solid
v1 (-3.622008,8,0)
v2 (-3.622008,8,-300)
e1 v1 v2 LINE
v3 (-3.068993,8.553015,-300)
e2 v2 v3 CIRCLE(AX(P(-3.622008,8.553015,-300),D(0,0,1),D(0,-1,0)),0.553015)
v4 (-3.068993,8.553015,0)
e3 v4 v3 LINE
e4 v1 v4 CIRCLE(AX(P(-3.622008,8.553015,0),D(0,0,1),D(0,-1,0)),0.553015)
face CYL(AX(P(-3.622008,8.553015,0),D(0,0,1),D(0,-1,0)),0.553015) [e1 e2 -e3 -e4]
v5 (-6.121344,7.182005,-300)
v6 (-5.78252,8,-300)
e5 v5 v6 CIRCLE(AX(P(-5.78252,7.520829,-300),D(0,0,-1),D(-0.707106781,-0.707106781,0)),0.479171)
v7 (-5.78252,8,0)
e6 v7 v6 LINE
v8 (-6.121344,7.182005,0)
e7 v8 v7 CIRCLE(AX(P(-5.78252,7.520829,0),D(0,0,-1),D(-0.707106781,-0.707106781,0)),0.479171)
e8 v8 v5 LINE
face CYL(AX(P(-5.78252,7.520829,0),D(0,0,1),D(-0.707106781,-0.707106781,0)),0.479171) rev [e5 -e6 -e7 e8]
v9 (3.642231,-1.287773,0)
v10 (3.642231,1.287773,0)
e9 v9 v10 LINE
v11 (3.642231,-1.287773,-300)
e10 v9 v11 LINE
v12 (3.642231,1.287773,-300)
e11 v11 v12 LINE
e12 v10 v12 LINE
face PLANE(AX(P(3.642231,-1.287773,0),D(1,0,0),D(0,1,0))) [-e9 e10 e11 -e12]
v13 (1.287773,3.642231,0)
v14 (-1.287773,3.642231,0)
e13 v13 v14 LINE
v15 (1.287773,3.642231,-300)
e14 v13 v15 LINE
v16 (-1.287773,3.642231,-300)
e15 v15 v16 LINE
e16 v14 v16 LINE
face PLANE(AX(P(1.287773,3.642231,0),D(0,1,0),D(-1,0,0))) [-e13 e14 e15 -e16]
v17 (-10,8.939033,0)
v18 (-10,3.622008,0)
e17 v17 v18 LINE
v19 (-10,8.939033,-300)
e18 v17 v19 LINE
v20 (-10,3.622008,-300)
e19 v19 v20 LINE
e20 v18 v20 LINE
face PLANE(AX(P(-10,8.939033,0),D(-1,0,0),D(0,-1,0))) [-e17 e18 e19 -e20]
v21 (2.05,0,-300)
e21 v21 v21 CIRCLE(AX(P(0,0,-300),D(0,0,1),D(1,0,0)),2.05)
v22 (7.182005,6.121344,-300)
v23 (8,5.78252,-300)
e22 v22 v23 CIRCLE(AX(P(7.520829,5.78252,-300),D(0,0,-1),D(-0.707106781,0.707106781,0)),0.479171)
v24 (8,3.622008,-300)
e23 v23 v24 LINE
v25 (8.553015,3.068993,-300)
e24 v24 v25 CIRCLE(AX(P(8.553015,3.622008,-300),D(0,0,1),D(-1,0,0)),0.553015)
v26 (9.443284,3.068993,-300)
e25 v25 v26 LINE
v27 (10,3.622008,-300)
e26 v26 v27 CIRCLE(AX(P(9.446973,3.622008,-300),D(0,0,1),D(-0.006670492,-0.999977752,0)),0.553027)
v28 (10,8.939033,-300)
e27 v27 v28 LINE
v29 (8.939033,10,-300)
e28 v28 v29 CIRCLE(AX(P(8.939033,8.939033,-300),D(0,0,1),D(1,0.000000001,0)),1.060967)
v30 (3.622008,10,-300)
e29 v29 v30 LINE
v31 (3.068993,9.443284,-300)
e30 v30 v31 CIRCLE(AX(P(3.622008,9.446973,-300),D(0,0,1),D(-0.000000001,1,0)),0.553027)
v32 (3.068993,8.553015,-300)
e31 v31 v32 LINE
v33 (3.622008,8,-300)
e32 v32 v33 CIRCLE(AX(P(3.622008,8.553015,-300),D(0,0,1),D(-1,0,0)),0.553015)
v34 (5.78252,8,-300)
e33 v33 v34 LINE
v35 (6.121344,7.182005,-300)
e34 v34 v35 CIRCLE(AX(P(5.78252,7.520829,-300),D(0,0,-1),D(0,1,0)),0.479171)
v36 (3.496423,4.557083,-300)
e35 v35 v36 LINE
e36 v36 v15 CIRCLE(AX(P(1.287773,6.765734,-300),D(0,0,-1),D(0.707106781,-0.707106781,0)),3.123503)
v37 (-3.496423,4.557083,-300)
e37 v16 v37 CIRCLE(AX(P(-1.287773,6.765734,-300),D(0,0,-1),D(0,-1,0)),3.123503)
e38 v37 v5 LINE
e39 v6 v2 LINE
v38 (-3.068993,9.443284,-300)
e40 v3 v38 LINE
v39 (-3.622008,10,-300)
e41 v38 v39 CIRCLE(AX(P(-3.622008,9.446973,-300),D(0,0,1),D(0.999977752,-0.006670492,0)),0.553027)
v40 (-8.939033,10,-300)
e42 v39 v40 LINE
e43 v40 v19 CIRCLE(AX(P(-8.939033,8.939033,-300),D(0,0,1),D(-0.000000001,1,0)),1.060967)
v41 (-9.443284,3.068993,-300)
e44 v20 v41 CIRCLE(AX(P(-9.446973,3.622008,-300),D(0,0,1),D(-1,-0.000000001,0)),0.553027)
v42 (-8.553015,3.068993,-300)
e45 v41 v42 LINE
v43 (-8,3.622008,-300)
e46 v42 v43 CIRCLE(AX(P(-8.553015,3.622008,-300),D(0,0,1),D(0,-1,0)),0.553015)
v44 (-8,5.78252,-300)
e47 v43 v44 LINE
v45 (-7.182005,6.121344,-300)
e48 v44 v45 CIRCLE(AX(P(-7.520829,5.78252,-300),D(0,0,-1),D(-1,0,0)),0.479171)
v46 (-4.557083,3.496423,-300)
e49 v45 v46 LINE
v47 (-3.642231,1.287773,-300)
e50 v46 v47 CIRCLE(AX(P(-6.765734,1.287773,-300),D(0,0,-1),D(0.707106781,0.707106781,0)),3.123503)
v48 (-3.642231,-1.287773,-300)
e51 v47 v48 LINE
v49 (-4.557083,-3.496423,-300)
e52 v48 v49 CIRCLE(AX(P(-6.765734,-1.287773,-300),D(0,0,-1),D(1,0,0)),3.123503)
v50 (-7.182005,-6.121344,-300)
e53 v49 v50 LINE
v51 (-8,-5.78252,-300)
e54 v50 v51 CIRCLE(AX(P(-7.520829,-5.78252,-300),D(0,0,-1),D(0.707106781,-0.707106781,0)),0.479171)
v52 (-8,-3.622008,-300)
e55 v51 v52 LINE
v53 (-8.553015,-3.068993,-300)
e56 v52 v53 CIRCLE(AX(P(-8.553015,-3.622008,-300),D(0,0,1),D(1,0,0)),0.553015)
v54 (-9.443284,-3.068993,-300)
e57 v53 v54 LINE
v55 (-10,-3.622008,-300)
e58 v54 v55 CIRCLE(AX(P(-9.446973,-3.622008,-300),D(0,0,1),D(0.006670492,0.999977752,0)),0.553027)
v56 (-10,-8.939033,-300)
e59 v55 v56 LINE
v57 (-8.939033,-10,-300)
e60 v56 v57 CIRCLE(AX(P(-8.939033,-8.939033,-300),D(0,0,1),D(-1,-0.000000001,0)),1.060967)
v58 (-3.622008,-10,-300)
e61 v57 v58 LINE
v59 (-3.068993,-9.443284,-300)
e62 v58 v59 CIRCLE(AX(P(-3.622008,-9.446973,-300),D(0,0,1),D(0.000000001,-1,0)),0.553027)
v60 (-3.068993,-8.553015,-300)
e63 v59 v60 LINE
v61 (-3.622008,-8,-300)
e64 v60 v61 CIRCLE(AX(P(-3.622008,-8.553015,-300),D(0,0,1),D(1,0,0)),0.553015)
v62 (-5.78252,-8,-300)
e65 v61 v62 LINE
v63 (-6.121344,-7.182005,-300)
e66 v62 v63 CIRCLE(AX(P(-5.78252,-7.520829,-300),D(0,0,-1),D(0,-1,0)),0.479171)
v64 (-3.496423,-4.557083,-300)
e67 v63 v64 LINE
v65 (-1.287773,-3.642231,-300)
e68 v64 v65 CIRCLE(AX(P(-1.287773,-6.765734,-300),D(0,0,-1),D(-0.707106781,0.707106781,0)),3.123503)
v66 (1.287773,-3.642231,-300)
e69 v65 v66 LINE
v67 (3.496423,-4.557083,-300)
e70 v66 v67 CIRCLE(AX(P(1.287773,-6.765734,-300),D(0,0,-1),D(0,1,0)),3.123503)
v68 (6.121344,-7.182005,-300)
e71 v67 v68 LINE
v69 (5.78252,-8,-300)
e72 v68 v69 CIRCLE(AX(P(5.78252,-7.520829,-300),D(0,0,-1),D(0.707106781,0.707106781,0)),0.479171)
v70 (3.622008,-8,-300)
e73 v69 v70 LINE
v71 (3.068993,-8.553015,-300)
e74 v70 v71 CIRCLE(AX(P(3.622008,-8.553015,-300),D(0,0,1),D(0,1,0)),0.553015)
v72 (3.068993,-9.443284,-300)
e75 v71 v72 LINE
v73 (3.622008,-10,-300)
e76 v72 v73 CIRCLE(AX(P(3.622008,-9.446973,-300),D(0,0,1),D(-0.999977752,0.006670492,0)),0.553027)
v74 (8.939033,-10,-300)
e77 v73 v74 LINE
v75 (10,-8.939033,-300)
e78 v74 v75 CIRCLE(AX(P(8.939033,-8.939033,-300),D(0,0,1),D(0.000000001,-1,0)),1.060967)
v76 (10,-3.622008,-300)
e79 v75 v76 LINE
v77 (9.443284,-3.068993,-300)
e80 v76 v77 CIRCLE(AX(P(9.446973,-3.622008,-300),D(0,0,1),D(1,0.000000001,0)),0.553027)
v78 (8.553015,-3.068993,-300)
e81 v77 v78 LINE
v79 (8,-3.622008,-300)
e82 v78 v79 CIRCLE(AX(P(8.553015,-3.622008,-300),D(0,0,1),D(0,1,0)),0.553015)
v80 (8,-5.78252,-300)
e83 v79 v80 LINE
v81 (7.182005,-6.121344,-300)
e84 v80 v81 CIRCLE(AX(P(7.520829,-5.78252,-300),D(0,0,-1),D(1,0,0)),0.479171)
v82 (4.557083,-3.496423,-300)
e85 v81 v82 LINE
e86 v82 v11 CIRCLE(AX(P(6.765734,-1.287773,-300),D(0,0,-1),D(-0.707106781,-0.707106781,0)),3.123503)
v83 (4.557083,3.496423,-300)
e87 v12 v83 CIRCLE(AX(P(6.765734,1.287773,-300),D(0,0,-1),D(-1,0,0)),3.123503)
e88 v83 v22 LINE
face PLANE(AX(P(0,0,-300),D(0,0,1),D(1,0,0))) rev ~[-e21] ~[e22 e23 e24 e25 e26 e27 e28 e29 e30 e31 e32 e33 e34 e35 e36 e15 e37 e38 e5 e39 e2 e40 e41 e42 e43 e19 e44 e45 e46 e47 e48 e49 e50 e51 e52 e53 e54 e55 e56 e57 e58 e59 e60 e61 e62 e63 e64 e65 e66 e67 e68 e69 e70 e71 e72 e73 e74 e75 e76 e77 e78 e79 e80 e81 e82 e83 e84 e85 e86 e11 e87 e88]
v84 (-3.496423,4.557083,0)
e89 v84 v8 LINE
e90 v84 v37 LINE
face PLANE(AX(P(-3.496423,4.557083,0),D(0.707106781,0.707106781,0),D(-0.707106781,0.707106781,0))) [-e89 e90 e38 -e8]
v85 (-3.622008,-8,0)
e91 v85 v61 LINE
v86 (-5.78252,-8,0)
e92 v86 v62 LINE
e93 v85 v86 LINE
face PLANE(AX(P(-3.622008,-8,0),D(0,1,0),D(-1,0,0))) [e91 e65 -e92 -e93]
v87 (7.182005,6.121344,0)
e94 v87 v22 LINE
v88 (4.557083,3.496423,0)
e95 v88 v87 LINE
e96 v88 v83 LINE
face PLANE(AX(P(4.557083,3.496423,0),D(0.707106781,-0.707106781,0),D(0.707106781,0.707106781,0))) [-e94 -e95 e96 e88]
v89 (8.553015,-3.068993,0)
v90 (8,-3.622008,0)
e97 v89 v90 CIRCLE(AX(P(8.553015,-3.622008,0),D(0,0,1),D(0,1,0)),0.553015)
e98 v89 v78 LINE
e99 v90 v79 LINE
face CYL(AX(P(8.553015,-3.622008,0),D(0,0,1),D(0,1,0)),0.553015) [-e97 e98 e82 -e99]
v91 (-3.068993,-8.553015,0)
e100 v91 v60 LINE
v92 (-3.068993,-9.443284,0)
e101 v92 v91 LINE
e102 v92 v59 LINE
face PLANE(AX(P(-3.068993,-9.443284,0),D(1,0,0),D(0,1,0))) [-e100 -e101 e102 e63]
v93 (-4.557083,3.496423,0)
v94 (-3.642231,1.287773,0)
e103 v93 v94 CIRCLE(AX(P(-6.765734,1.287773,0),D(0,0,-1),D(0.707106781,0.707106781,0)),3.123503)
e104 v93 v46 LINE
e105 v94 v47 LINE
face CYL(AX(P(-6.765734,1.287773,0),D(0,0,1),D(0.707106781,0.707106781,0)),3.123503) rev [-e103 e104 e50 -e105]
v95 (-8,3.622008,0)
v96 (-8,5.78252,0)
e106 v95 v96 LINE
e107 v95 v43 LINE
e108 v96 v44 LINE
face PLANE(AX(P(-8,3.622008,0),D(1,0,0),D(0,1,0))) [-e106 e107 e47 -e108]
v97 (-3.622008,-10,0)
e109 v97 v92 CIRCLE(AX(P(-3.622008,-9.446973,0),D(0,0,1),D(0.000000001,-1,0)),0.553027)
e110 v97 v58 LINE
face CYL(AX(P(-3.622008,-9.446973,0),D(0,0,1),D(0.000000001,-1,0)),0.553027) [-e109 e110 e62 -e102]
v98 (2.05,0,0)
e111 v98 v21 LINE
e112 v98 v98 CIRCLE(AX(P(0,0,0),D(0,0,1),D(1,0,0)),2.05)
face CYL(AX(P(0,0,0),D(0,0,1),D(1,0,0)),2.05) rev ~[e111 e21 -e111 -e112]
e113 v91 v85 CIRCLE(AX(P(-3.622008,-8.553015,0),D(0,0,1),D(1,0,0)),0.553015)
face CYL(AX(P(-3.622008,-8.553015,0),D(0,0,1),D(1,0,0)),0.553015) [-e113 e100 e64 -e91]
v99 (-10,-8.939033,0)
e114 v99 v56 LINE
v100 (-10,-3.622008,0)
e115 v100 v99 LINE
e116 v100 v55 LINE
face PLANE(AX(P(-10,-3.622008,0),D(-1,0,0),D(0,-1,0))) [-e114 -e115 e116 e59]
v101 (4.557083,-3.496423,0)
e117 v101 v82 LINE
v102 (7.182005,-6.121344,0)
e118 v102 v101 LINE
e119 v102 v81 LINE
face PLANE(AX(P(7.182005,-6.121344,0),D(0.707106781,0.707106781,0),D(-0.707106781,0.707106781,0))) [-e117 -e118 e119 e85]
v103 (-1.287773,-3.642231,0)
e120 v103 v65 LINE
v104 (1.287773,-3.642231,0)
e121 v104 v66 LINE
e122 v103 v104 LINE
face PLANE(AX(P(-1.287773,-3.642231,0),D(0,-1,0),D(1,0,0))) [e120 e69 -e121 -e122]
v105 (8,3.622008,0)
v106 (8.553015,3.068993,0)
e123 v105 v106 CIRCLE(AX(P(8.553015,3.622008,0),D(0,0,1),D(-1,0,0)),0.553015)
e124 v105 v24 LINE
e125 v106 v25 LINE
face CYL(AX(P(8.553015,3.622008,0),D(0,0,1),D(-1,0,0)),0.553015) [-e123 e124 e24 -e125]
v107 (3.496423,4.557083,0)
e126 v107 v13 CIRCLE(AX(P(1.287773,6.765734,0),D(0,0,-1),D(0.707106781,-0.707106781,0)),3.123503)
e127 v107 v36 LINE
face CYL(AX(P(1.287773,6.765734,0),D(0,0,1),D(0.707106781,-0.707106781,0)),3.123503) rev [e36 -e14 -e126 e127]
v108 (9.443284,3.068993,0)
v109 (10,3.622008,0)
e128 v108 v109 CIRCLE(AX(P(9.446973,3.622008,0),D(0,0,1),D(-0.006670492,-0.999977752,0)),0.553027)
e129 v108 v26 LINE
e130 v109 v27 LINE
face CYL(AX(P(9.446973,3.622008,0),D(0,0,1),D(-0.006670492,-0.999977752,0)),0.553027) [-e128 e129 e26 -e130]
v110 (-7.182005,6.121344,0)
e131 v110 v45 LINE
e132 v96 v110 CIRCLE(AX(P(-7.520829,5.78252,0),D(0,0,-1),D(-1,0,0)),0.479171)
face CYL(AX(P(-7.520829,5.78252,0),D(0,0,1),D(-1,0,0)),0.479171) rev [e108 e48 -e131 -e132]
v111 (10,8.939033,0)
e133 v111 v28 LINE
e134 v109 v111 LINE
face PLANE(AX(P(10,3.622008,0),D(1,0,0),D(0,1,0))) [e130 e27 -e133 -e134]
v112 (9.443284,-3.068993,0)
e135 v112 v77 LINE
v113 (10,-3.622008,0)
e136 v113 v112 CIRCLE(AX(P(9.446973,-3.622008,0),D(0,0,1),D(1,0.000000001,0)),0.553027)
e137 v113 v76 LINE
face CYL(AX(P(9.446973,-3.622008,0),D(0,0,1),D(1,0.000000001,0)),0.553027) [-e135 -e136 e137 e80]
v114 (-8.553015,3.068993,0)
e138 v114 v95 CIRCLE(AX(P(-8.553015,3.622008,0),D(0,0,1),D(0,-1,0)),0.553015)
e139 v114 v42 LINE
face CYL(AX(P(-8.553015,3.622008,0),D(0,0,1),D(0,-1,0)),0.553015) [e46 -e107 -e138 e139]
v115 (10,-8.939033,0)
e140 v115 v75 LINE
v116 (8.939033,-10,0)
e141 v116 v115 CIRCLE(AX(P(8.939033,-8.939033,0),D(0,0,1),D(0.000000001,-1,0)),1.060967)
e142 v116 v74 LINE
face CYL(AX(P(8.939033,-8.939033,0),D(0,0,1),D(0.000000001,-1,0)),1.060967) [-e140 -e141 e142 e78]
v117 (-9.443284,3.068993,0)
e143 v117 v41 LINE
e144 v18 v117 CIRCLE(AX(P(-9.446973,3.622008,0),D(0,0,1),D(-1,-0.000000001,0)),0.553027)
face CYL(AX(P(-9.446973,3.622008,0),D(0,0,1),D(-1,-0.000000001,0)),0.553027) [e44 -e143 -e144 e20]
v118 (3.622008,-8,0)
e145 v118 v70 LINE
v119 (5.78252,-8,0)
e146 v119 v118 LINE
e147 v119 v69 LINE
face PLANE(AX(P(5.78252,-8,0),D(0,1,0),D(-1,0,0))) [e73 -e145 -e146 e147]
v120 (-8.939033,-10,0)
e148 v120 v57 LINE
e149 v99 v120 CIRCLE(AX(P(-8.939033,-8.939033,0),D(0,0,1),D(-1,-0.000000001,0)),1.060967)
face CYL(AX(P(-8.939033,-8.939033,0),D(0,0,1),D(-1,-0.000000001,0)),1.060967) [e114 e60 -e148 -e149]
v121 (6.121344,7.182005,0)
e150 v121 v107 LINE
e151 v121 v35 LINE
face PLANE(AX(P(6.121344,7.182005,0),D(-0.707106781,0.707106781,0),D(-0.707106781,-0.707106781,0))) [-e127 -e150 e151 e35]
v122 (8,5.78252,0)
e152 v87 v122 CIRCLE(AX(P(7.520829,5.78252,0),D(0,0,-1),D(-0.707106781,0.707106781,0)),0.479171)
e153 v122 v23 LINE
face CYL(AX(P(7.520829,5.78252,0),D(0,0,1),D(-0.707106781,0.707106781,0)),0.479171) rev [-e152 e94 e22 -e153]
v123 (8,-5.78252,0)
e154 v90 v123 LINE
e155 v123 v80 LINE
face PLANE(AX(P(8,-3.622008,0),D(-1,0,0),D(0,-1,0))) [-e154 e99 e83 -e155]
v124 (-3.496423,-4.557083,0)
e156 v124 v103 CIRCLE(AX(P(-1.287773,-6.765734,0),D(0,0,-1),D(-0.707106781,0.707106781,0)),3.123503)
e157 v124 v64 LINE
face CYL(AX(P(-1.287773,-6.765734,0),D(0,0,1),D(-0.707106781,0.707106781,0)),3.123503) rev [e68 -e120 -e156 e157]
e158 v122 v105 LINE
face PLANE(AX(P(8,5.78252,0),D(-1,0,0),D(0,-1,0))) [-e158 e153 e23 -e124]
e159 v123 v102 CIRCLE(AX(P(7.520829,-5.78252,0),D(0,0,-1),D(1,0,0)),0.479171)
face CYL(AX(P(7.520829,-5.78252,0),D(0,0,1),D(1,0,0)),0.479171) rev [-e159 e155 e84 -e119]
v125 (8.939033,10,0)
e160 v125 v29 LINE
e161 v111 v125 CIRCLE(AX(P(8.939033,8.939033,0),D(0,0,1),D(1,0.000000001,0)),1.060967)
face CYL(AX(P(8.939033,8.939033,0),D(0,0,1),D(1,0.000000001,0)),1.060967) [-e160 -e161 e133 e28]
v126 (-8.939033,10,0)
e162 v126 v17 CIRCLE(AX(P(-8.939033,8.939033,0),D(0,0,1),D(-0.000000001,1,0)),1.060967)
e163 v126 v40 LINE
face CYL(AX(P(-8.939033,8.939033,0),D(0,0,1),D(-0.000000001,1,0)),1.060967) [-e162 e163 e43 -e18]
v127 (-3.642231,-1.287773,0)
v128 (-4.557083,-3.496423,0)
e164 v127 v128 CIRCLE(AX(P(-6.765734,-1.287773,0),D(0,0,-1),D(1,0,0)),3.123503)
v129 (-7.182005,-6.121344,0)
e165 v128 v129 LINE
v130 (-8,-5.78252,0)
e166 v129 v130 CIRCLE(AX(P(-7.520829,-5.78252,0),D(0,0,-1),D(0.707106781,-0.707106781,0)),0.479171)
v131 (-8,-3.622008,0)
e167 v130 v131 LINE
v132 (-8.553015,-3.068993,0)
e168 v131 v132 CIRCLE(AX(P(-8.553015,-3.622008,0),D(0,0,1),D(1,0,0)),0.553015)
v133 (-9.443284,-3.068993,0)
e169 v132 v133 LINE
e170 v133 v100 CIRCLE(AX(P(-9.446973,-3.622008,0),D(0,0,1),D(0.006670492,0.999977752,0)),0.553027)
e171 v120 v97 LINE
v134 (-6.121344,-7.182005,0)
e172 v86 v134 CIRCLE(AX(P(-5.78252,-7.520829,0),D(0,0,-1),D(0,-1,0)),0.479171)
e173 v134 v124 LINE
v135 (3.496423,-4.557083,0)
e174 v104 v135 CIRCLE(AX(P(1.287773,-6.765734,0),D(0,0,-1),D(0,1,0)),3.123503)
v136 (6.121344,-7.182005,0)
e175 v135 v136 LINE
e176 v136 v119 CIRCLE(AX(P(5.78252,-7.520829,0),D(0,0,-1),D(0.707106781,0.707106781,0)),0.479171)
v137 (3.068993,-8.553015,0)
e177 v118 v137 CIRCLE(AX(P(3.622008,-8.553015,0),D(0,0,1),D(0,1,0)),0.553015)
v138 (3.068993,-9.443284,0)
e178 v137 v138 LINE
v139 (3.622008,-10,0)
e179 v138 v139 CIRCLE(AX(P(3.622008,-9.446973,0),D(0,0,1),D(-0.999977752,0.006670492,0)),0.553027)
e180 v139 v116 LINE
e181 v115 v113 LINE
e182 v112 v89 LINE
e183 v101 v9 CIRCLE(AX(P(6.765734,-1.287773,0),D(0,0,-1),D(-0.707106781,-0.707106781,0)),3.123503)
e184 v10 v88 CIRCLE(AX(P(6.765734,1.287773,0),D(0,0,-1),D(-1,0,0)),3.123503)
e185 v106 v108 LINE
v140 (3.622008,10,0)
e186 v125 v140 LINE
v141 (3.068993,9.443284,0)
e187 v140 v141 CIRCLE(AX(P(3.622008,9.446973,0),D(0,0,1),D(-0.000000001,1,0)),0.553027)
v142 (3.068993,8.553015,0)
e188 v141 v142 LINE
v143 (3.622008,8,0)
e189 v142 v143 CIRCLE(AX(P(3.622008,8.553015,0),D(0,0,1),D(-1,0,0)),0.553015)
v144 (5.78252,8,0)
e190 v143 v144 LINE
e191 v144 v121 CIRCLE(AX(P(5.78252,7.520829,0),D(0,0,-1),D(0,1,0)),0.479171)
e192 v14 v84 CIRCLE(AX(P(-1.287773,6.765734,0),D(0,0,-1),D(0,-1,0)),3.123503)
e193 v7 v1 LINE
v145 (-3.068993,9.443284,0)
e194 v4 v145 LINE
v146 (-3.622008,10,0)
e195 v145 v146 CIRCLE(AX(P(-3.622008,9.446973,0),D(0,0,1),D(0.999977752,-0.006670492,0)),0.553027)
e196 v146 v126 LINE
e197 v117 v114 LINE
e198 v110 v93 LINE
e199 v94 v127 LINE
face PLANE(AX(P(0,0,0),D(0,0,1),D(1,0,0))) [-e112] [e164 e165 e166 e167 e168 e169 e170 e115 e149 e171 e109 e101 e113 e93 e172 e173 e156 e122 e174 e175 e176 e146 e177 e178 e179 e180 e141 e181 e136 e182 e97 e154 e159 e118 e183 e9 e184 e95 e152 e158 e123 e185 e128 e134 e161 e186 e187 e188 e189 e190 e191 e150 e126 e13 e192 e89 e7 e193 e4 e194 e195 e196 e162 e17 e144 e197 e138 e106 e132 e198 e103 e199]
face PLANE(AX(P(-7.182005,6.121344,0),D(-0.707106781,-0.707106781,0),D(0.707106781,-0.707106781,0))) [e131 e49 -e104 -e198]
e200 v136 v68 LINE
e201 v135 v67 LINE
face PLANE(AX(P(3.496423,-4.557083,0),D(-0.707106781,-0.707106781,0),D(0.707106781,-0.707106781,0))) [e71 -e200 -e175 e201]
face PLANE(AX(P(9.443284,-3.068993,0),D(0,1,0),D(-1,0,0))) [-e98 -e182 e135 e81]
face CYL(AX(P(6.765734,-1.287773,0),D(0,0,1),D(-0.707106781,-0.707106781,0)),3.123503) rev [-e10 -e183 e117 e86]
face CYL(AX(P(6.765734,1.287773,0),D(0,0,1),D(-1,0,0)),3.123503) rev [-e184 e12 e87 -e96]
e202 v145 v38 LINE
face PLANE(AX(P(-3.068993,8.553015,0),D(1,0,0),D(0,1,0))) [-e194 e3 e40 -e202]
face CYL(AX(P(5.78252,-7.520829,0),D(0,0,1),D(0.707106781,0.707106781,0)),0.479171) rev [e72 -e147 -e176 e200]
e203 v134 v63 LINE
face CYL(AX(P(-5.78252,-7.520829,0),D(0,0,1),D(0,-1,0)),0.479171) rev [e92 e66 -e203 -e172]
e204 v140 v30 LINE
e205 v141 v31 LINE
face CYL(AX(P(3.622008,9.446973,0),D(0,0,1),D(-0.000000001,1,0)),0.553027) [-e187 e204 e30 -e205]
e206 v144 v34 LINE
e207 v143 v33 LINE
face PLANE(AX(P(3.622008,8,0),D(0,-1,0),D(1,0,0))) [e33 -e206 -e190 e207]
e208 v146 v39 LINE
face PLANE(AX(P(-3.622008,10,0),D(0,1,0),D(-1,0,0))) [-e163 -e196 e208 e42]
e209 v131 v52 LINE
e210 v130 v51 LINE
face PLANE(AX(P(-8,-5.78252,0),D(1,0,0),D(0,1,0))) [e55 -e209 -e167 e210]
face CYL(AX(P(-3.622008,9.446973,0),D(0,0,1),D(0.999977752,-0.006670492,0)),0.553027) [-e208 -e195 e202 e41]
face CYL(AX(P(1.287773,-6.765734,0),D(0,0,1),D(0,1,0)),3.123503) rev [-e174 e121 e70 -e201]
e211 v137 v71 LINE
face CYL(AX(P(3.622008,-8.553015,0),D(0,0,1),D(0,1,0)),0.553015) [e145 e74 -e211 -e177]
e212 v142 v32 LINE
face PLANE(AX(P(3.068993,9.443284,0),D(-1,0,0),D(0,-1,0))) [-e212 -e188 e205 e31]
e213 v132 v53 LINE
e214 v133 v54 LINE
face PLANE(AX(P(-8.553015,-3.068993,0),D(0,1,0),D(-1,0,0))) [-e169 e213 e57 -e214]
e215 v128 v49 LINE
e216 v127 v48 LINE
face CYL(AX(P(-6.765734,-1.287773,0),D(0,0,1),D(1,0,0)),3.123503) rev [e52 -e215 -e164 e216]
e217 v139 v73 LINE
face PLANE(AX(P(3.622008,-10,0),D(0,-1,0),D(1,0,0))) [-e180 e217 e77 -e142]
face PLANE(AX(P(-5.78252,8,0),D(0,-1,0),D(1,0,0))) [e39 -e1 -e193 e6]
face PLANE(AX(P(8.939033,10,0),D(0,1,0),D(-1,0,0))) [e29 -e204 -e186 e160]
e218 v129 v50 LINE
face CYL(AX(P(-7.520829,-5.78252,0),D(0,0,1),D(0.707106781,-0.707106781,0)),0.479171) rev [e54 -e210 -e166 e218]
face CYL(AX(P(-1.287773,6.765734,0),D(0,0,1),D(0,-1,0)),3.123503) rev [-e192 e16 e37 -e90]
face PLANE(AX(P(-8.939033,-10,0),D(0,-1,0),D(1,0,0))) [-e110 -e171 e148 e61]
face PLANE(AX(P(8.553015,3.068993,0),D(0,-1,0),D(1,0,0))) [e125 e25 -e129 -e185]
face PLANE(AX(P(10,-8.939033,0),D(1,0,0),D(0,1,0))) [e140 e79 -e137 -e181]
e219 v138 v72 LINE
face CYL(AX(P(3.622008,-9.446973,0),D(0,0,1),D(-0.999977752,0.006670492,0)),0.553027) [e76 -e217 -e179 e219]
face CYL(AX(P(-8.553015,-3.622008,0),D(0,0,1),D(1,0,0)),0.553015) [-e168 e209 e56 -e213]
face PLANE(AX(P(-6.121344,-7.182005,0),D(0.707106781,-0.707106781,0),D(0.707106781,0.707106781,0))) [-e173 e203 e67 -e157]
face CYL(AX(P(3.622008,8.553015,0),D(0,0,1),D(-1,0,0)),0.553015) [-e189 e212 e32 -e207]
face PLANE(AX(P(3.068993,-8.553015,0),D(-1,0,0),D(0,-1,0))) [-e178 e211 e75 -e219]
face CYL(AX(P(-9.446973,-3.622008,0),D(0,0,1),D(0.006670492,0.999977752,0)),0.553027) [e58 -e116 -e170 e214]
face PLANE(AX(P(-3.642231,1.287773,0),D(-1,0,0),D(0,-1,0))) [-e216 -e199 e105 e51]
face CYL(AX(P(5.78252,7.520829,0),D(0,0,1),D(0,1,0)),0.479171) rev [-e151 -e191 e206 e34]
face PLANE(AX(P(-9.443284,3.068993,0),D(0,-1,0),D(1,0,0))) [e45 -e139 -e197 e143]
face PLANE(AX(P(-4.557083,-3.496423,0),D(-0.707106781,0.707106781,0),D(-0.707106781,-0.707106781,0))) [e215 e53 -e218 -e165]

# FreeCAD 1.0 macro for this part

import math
import FreeCAD as App
import Part
import Sketcher

doc = App.newDocument("Part")
params = doc.addObject("Spreadsheet::Sheet", "Params")
for row, (alias, value) in enumerate([
    ("sketch1_diameter", "4.1 mm"),
    ("pad1_length", "300 mm"),
], start=1):
    params.set(f"A{row}", alias)
    params.set(f"B{row}", "=" + value)
    params.setAlias(f"B{row}", alias)

body = doc.addObject("PartDesign::Body", "Body")

# Sketch on XY plane
sketch1 = body.newObject("Sketcher::SketchObject", "Sketch")
sketch1.AttachmentSupport = (doc.getObject("XY_Plane"), [""])
sketch1.MapMode = "FlatFace"
sketch1.addGeometry(Part.LineSegment(App.Vector(-3.642231, 1.287773, 0), App.Vector(-3.642231, -1.287773, 0)), False)
sketch1.addGeometry(Part.ArcOfCircle(Part.Circle(App.Vector(-6.765734, -1.287773, 0), App.Vector(0, 0, 1), 3.123503), math.radians(-45), math.radians(0)), False)
sketch1.addGeometry(Part.LineSegment(App.Vector(-4.557083, -3.496423, 0), App.Vector(-7.182005, -6.121344, 0)), False)
sketch1.addGeometry(Part.ArcOfCircle(Part.Circle(App.Vector(-7.520829, -5.78252, 0), App.Vector(0, 0, 1), 0.479171), math.radians(180), math.radians(315)), False)
sketch1.addGeometry(Part.LineSegment(App.Vector(-8, -5.78252, 0), App.Vector(-8, -3.622008, 0)), False)
sketch1.addGeometry(Part.ArcOfCircle(Part.Circle(App.Vector(-8.553015, -3.622008, 0), App.Vector(0, 0, 1), 0.553015), math.radians(0), math.radians(90)), False)
sketch1.addGeometry(Part.LineSegment(App.Vector(-8.553015, -3.068993, 0), App.Vector(-9.443284, -3.068993, 0)), False)
sketch1.addGeometry(Part.ArcOfCircle(Part.Circle(App.Vector(-9.446973, -3.622008, 0), App.Vector(0, 0, 1), 0.553027), math.radians(89.617806), math.radians(180)), False)
sketch1.addGeometry(Part.LineSegment(App.Vector(-10, -3.622008, 0), App.Vector(-10, -8.939033, 0)), False)
sketch1.addGeometry(Part.ArcOfCircle(Part.Circle(App.Vector(-8.939033, -8.939033, 0), App.Vector(0, 0, 1), 1.060967), math.radians(-180), math.radians(-90)), False)
sketch1.addGeometry(Part.LineSegment(App.Vector(-8.939033, -10, 0), App.Vector(-3.622008, -10, 0)), False)
sketch1.addGeometry(Part.ArcOfCircle(Part.Circle(App.Vector(-3.622008, -9.446973, 0), App.Vector(0, 0, 1), 0.553027), math.radians(-90), math.radians(0.382194)), False)
sketch1.addGeometry(Part.LineSegment(App.Vector(-3.068993, -9.443284, 0), App.Vector(-3.068993, -8.553015, 0)), False)
sketch1.addGeometry(Part.ArcOfCircle(Part.Circle(App.Vector(-3.622008, -8.553015, 0), App.Vector(0, 0, 1), 0.553015), math.radians(0), math.radians(90)), False)
sketch1.addGeometry(Part.LineSegment(App.Vector(-3.622008, -8, 0), App.Vector(-5.78252, -8, 0)), False)
sketch1.addGeometry(Part.ArcOfCircle(Part.Circle(App.Vector(-5.78252, -7.520829, 0), App.Vector(0, 0, 1), 0.479171), math.radians(135), math.radians(270)), False)
sketch1.addGeometry(Part.LineSegment(App.Vector(-6.121344, -7.182005, 0), App.Vector(-3.496423, -4.557083, 0)), False)
sketch1.addGeometry(Part.ArcOfCircle(Part.Circle(App.Vector(-1.287773, -6.765734, 0), App.Vector(0, 0, 1), 3.123503), math.radians(90), math.radians(135)), False)
sketch1.addGeometry(Part.LineSegment(App.Vector(-1.287773, -3.642231, 0), App.Vector(1.287773, -3.642231, 0)), False)
sketch1.addGeometry(Part.ArcOfCircle(Part.Circle(App.Vector(1.287773, -6.765734, 0), App.Vector(0, 0, 1), 3.123503), math.radians(45), math.radians(90)), False)
sketch1.addGeometry(Part.LineSegment(App.Vector(3.496423, -4.557083, 0), App.Vector(6.121344, -7.182005, 0)), False)
sketch1.addGeometry(Part.ArcOfCircle(Part.Circle(App.Vector(5.78252, -7.520829, 0), App.Vector(0, 0, 1), 0.479171), math.radians(-90), math.radians(45)), False)
sketch1.addGeometry(Part.LineSegment(App.Vector(5.78252, -8, 0), App.Vector(3.622008, -8, 0)), False)
sketch1.addGeometry(Part.ArcOfCircle(Part.Circle(App.Vector(3.622008, -8.553015, 0), App.Vector(0, 0, 1), 0.553015), math.radians(90), math.radians(180)), False)
sketch1.addGeometry(Part.LineSegment(App.Vector(3.068993, -8.553015, 0), App.Vector(3.068993, -9.443284, 0)), False)
sketch1.addGeometry(Part.ArcOfCircle(Part.Circle(App.Vector(3.622008, -9.446973, 0), App.Vector(0, 0, 1), 0.553027), math.radians(179.617806), math.radians(270)), False)
sketch1.addGeometry(Part.LineSegment(App.Vector(3.622008, -10, 0), App.Vector(8.939033, -10, 0)), False)
sketch1.addGeometry(Part.ArcOfCircle(Part.Circle(App.Vector(8.939033, -8.939033, 0), App.Vector(0, 0, 1), 1.060967), math.radians(-90), math.radians(0)), False)
sketch1.addGeometry(Part.LineSegment(App.Vector(10, -8.939033, 0), App.Vector(10, -3.622008, 0)), False)
sketch1.addGeometry(Part.ArcOfCircle(Part.Circle(App.Vector(9.446973, -3.622008, 0), App.Vector(0, 0, 1), 0.553027), math.radians(0), math.radians(90.382194)), False)
sketch1.addGeometry(Part.LineSegment(App.Vector(9.443284, -3.068993, 0), App.Vector(8.553015, -3.068993, 0)), False)
sketch1.addGeometry(Part.ArcOfCircle(Part.Circle(App.Vector(8.553015, -3.622008, 0), App.Vector(0, 0, 1), 0.553015), math.radians(90), math.radians(180)), False)
sketch1.addGeometry(Part.LineSegment(App.Vector(8, -3.622008, 0), App.Vector(8, -5.78252, 0)), False)
sketch1.addGeometry(Part.ArcOfCircle(Part.Circle(App.Vector(7.520829, -5.78252, 0), App.Vector(0, 0, 1), 0.479171), math.radians(-135), math.radians(0)), False)
sketch1.addGeometry(Part.LineSegment(App.Vector(7.182005, -6.121344, 0), App.Vector(4.557083, -3.496423, 0)), False)
sketch1.addGeometry(Part.ArcOfCircle(Part.Circle(App.Vector(6.765734, -1.287773, 0), App.Vector(0, 0, 1), 3.123503), math.radians(180), math.radians(225)), False)
sketch1.addGeometry(Part.LineSegment(App.Vector(3.642231, -1.287773, 0), App.Vector(3.642231, 1.287773, 0)), False)
sketch1.addGeometry(Part.ArcOfCircle(Part.Circle(App.Vector(6.765734, 1.287773, 0), App.Vector(0, 0, 1), 3.123503), math.radians(135), math.radians(180)), False)
sketch1.addGeometry(Part.LineSegment(App.Vector(4.557083, 3.496423, 0), App.Vector(7.182005, 6.121344, 0)), False)
sketch1.addGeometry(Part.ArcOfCircle(Part.Circle(App.Vector(7.520829, 5.78252, 0), App.Vector(0, 0, 1), 0.479171), math.radians(0), math.radians(135)), False)
sketch1.addGeometry(Part.LineSegment(App.Vector(8, 5.78252, 0), App.Vector(8, 3.622008, 0)), False)
sketch1.addGeometry(Part.ArcOfCircle(Part.Circle(App.Vector(8.553015, 3.622008, 0), App.Vector(0, 0, 1), 0.553015), math.radians(180), math.radians(270)), False)
sketch1.addGeometry(Part.LineSegment(App.Vector(8.553015, 3.068993, 0), App.Vector(9.443284, 3.068993, 0)), False)
sketch1.addGeometry(Part.ArcOfCircle(Part.Circle(App.Vector(9.446973, 3.622008, 0), App.Vector(0, 0, 1), 0.553027), math.radians(-90.382194), math.radians(0)), False)
sketch1.addGeometry(Part.LineSegment(App.Vector(10, 3.622008, 0), App.Vector(10, 8.939033, 0)), False)
sketch1.addGeometry(Part.ArcOfCircle(Part.Circle(App.Vector(8.939033, 8.939033, 0), App.Vector(0, 0, 1), 1.060967), math.radians(0), math.radians(90)), False)
sketch1.addGeometry(Part.LineSegment(App.Vector(8.939033, 10, 0), App.Vector(3.622008, 10, 0)), False)
sketch1.addGeometry(Part.ArcOfCircle(Part.Circle(App.Vector(3.622008, 9.446973, 0), App.Vector(0, 0, 1), 0.553027), math.radians(90), math.radians(180.382194)), False)
sketch1.addGeometry(Part.LineSegment(App.Vector(3.068993, 9.443284, 0), App.Vector(3.068993, 8.553015, 0)), False)
sketch1.addGeometry(Part.ArcOfCircle(Part.Circle(App.Vector(3.622008, 8.553015, 0), App.Vector(0, 0, 1), 0.553015), math.radians(180), math.radians(270)), False)
sketch1.addGeometry(Part.LineSegment(App.Vector(3.622008, 8, 0), App.Vector(5.78252, 8, 0)), False)
sketch1.addGeometry(Part.ArcOfCircle(Part.Circle(App.Vector(5.78252, 7.520829, 0), App.Vector(0, 0, 1), 0.479171), math.radians(-45), math.radians(90)), False)
sketch1.addGeometry(Part.LineSegment(App.Vector(6.121344, 7.182005, 0), App.Vector(3.496423, 4.557083, 0)), False)
sketch1.addGeometry(Part.ArcOfCircle(Part.Circle(App.Vector(1.287773, 6.765734, 0), App.Vector(0, 0, 1), 3.123503), math.radians(-90), math.radians(-45)), False)
sketch1.addGeometry(Part.LineSegment(App.Vector(1.287773, 3.642231, 0), App.Vector(-1.287773, 3.642231, 0)), False)
sketch1.addGeometry(Part.ArcOfCircle(Part.Circle(App.Vector(-1.287773, 6.765734, 0), App.Vector(0, 0, 1), 3.123503), math.radians(-135), math.radians(-90)), False)
sketch1.addGeometry(Part.LineSegment(App.Vector(-3.496423, 4.557083, 0), App.Vector(-6.121344, 7.182005, 0)), False)
sketch1.addGeometry(Part.ArcOfCircle(Part.Circle(App.Vector(-5.78252, 7.520829, 0), App.Vector(0, 0, 1), 0.479171), math.radians(90), math.radians(225)), False)
sketch1.addGeometry(Part.LineSegment(App.Vector(-5.78252, 8, 0), App.Vector(-3.622008, 8, 0)), False)
sketch1.addGeometry(Part.ArcOfCircle(Part.Circle(App.Vector(-3.622008, 8.553015, 0), App.Vector(0, 0, 1), 0.553015), math.radians(-90), math.radians(0)), False)
sketch1.addGeometry(Part.LineSegment(App.Vector(-3.068993, 8.553015, 0), App.Vector(-3.068993, 9.443284, 0)), False)
sketch1.addGeometry(Part.ArcOfCircle(Part.Circle(App.Vector(-3.622008, 9.446973, 0), App.Vector(0, 0, 1), 0.553027), math.radians(-0.382194), math.radians(90)), False)
sketch1.addGeometry(Part.LineSegment(App.Vector(-3.622008, 10, 0), App.Vector(-8.939033, 10, 0)), False)
sketch1.addGeometry(Part.ArcOfCircle(Part.Circle(App.Vector(-8.939033, 8.939033, 0), App.Vector(0, 0, 1), 1.060967), math.radians(90), math.radians(180)), False)
sketch1.addGeometry(Part.LineSegment(App.Vector(-10, 8.939033, 0), App.Vector(-10, 3.622008, 0)), False)
sketch1.addGeometry(Part.ArcOfCircle(Part.Circle(App.Vector(-9.446973, 3.622008, 0), App.Vector(0, 0, 1), 0.553027), math.radians(180), math.radians(270.382194)), False)
sketch1.addGeometry(Part.LineSegment(App.Vector(-9.443284, 3.068993, 0), App.Vector(-8.553015, 3.068993, 0)), False)
sketch1.addGeometry(Part.ArcOfCircle(Part.Circle(App.Vector(-8.553015, 3.622008, 0), App.Vector(0, 0, 1), 0.553015), math.radians(-90), math.radians(0)), False)
sketch1.addGeometry(Part.LineSegment(App.Vector(-8, 3.622008, 0), App.Vector(-8, 5.78252, 0)), False)
sketch1.addGeometry(Part.ArcOfCircle(Part.Circle(App.Vector(-7.520829, 5.78252, 0), App.Vector(0, 0, 1), 0.479171), math.radians(45), math.radians(180)), False)
sketch1.addGeometry(Part.LineSegment(App.Vector(-7.182005, 6.121344, 0), App.Vector(-4.557083, 3.496423, 0)), False)
sketch1.addGeometry(Part.ArcOfCircle(Part.Circle(App.Vector(-6.765734, 1.287773, 0), App.Vector(0, 0, 1), 3.123503), math.radians(0), math.radians(45)), False)
sketch1.addGeometry(Part.Circle(App.Vector(0, 0, 0), App.Vector(0, 0, 1), 2.05), False)
sketch1.addConstraint(Sketcher.Constraint("Tangent", 0, 2, 1, 2))
sketch1.addConstraint(Sketcher.Constraint("Tangent", 1, 1, 2, 1))
sketch1.addConstraint(Sketcher.Constraint("Tangent", 2, 2, 3, 2))
sketch1.addConstraint(Sketcher.Constraint("Tangent", 3, 1, 4, 1))
sketch1.addConstraint(Sketcher.Constraint("Tangent", 4, 2, 5, 1))
sketch1.addConstraint(Sketcher.Constraint("Tangent", 5, 2, 6, 1))
sketch1.addConstraint(Sketcher.Constraint("Coincident", 6, 2, 7, 1))
sketch1.addConstraint(Sketcher.Constraint("Tangent", 7, 2, 8, 1))
sketch1.addConstraint(Sketcher.Constraint("Tangent", 8, 2, 9, 1))
sketch1.addConstraint(Sketcher.Constraint("Tangent", 9, 2, 10, 1))
sketch1.addConstraint(Sketcher.Constraint("Tangent", 10, 2, 11, 1))
sketch1.addConstraint(Sketcher.Constraint("Coincident", 11, 2, 12, 1))
sketch1.addConstraint(Sketcher.Constraint("Tangent", 12, 2, 13, 1))
sketch1.addConstraint(Sketcher.Constraint("Tangent", 13, 2, 14, 1))
sketch1.addConstraint(Sketcher.Constraint("Tangent", 14, 2, 15, 2))
sketch1.addConstraint(Sketcher.Constraint("Tangent", 15, 1, 16, 1))
sketch1.addConstraint(Sketcher.Constraint("Tangent", 16, 2, 17, 2))
sketch1.addConstraint(Sketcher.Constraint("Tangent", 17, 1, 18, 1))
sketch1.addConstraint(Sketcher.Constraint("Tangent", 18, 2, 19, 2))
sketch1.addConstraint(Sketcher.Constraint("Tangent", 19, 1, 20, 1))
sketch1.addConstraint(Sketcher.Constraint("Tangent", 20, 2, 21, 2))
sketch1.addConstraint(Sketcher.Constraint("Tangent", 21, 1, 22, 1))
sketch1.addConstraint(Sketcher.Constraint("Tangent", 22, 2, 23, 1))
sketch1.addConstraint(Sketcher.Constraint("Tangent", 23, 2, 24, 1))
sketch1.addConstraint(Sketcher.Constraint("Coincident", 24, 2, 25, 1))
sketch1.addConstraint(Sketcher.Constraint("Tangent", 25, 2, 26, 1))
sketch1.addConstraint(Sketcher.Constraint("Tangent", 26, 2, 27, 1))
sketch1.addConstraint(Sketcher.Constraint("Tangent", 27, 2, 28, 1))
sketch1.addConstraint(Sketcher.Constraint("Tangent", 28, 2, 29, 1))
sketch1.addConstraint(Sketcher.Constraint("Coincident", 29, 2, 30, 1))
sketch1.addConstraint(Sketcher.Constraint("Tangent", 30, 2, 31, 1))
sketch1.addConstraint(Sketcher.Constraint("Tangent", 31, 2, 32, 1))
sketch1.addConstraint(Sketcher.Constraint("Tangent", 32, 2, 33, 2))
sketch1.addConstraint(Sketcher.Constraint("Tangent", 33, 1, 34, 1))
sketch1.addConstraint(Sketcher.Constraint("Tangent", 34, 2, 35, 2))
sketch1.addConstraint(Sketcher.Constraint("Tangent", 35, 1, 36, 1))
sketch1.addConstraint(Sketcher.Constraint("Tangent", 36, 2, 37, 2))
sketch1.addConstraint(Sketcher.Constraint("Tangent", 37, 1, 38, 1))
sketch1.addConstraint(Sketcher.Constraint("Tangent", 38, 2, 39, 2))
sketch1.addConstraint(Sketcher.Constraint("Tangent", 39, 1, 40, 1))
sketch1.addConstraint(Sketcher.Constraint("Tangent", 40, 2, 41, 1))
sketch1.addConstraint(Sketcher.Constraint("Tangent", 41, 2, 42, 1))
sketch1.addConstraint(Sketcher.Constraint("Coincident", 42, 2, 43, 1))
sketch1.addConstraint(Sketcher.Constraint("Tangent", 43, 2, 44, 1))
sketch1.addConstraint(Sketcher.Constraint("Tangent", 44, 2, 45, 1))
sketch1.addConstraint(Sketcher.Constraint("Tangent", 45, 2, 46, 1))
sketch1.addConstraint(Sketcher.Constraint("Tangent", 46, 2, 47, 1))
sketch1.addConstraint(Sketcher.Constraint("Coincident", 47, 2, 48, 1))
sketch1.addConstraint(Sketcher.Constraint("Tangent", 48, 2, 49, 1))
sketch1.addConstraint(Sketcher.Constraint("Tangent", 49, 2, 50, 1))
sketch1.addConstraint(Sketcher.Constraint("Tangent", 50, 2, 51, 2))
sketch1.addConstraint(Sketcher.Constraint("Tangent", 51, 1, 52, 1))
sketch1.addConstraint(Sketcher.Constraint("Tangent", 52, 2, 53, 2))
sketch1.addConstraint(Sketcher.Constraint("Tangent", 53, 1, 54, 1))
sketch1.addConstraint(Sketcher.Constraint("Tangent", 54, 2, 55, 2))
sketch1.addConstraint(Sketcher.Constraint("Tangent", 55, 1, 56, 1))
sketch1.addConstraint(Sketcher.Constraint("Tangent", 56, 2, 57, 2))
sketch1.addConstraint(Sketcher.Constraint("Tangent", 57, 1, 58, 1))
sketch1.addConstraint(Sketcher.Constraint("Tangent", 58, 2, 59, 1))
sketch1.addConstraint(Sketcher.Constraint("Tangent", 59, 2, 60, 1))
sketch1.addConstraint(Sketcher.Constraint("Coincident", 60, 2, 61, 1))
sketch1.addConstraint(Sketcher.Constraint("Tangent", 61, 2, 62, 1))
sketch1.addConstraint(Sketcher.Constraint("Tangent", 62, 2, 63, 1))
sketch1.addConstraint(Sketcher.Constraint("Tangent", 63, 2, 64, 1))
sketch1.addConstraint(Sketcher.Constraint("Tangent", 64, 2, 65, 1))
sketch1.addConstraint(Sketcher.Constraint("Coincident", 65, 2, 66, 1))
sketch1.addConstraint(Sketcher.Constraint("Tangent", 66, 2, 67, 1))
sketch1.addConstraint(Sketcher.Constraint("Tangent", 67, 2, 68, 1))
sketch1.addConstraint(Sketcher.Constraint("Tangent", 68, 2, 69, 2))
sketch1.addConstraint(Sketcher.Constraint("Tangent", 69, 1, 70, 1))
sketch1.addConstraint(Sketcher.Constraint("Tangent", 70, 2, 71, 2))
sketch1.addConstraint(Sketcher.Constraint("Tangent", 71, 1, 0, 1))
sketch1.addConstraint(Sketcher.Constraint("Vertical", 0))
sketch1.addConstraint(Sketcher.Constraint("Vertical", 4))
sketch1.addConstraint(Sketcher.Constraint("Horizontal", 6))
sketch1.addConstraint(Sketcher.Constraint("Vertical", 8))
sketch1.addConstraint(Sketcher.Constraint("Horizontal", 10))
sketch1.addConstraint(Sketcher.Constraint("Vertical", 12))
sketch1.addConstraint(Sketcher.Constraint("Horizontal", 14))
sketch1.addConstraint(Sketcher.Constraint("Horizontal", 18))
sketch1.addConstraint(Sketcher.Constraint("Horizontal", 22))
sketch1.addConstraint(Sketcher.Constraint("Vertical", 24))
sketch1.addConstraint(Sketcher.Constraint("Horizontal", 26))
sketch1.addConstraint(Sketcher.Constraint("Vertical", 28))
sketch1.addConstraint(Sketcher.Constraint("Horizontal", 30))
sketch1.addConstraint(Sketcher.Constraint("Vertical", 32))
sketch1.addConstraint(Sketcher.Constraint("Vertical", 36))
sketch1.addConstraint(Sketcher.Constraint("Vertical", 40))
sketch1.addConstraint(Sketcher.Constraint("Horizontal", 42))
sketch1.addConstraint(Sketcher.Constraint("Vertical", 44))
sketch1.addConstraint(Sketcher.Constraint("Horizontal", 46))
sketch1.addConstraint(Sketcher.Constraint("Vertical", 48))
sketch1.addConstraint(Sketcher.Constraint("Horizontal", 50))
sketch1.addConstraint(Sketcher.Constraint("Horizontal", 54))
sketch1.addConstraint(Sketcher.Constraint("Horizontal", 58))
sketch1.addConstraint(Sketcher.Constraint("Vertical", 60))
sketch1.addConstraint(Sketcher.Constraint("Horizontal", 62))
sketch1.addConstraint(Sketcher.Constraint("Vertical", 64))
sketch1.addConstraint(Sketcher.Constraint("Horizontal", 66))
sketch1.addConstraint(Sketcher.Constraint("Vertical", 68))
sketch1.addConstraint(Sketcher.Constraint("Coincident", 72, 3, -1, 1))
sketch1.addConstraint(Sketcher.Constraint("Equal", 7, 11))
sketch1.addConstraint(Sketcher.Constraint("Equal", 5, 13))
sketch1.addConstraint(Sketcher.Constraint("Equal", 3, 15))
sketch1.addConstraint(Sketcher.Constraint("Equal", 1, 17))
sketch1.addConstraint(Sketcher.Constraint("Equal", 17, 19))
sketch1.addConstraint(Sketcher.Constraint("Equal", 15, 21))
sketch1.addConstraint(Sketcher.Constraint("Equal", 13, 23))
sketch1.addConstraint(Sketcher.Constraint("Equal", 11, 25))
sketch1.addConstraint(Sketcher.Constraint("Equal", 9, 27))
sketch1.addConstraint(Sketcher.Constraint("Equal", 25, 29))
sketch1.addConstraint(Sketcher.Constraint("Equal", 23, 31))
sketch1.addConstraint(Sketcher.Constraint("Equal", 21, 33))
sketch1.addConstraint(Sketcher.Constraint("Equal", 19, 35))
sketch1.addConstraint(Sketcher.Constraint("Equal", 35, 37))
sketch1.addConstraint(Sketcher.Constraint("Equal", 33, 39))
sketch1.addConstraint(Sketcher.Constraint("Equal", 31, 41))
sketch1.addConstraint(Sketcher.Constraint("Equal", 29, 43))
sketch1.addConstraint(Sketcher.Constraint("Equal", 27, 45))
sketch1.addConstraint(Sketcher.Constraint("Equal", 43, 47))
sketch1.addConstraint(Sketcher.Constraint("Equal", 41, 49))
sketch1.addConstraint(Sketcher.Constraint("Equal", 39, 51))
sketch1.addConstraint(Sketcher.Constraint("Equal", 37, 53))
sketch1.addConstraint(Sketcher.Constraint("Equal", 53, 55))
sketch1.addConstraint(Sketcher.Constraint("Equal", 51, 57))
sketch1.addConstraint(Sketcher.Constraint("Equal", 49, 59))
sketch1.addConstraint(Sketcher.Constraint("Equal", 47, 61))
sketch1.addConstraint(Sketcher.Constraint("Equal", 45, 63))
sketch1.addConstraint(Sketcher.Constraint("Equal", 61, 65))
sketch1.addConstraint(Sketcher.Constraint("Equal", 59, 67))
sketch1.addConstraint(Sketcher.Constraint("Equal", 57, 69))
sketch1.addConstraint(Sketcher.Constraint("Equal", 55, 71))
sketch1.addConstraint(Sketcher.Constraint("Symmetric", 1, 3, 37, 3, -1, 1))
sketch1.addConstraint(Sketcher.Constraint("Symmetric", 3, 3, 39, 3, -1, 1))
sketch1.addConstraint(Sketcher.Constraint("Symmetric", 7, 3, 43, 3, -1, 1))
sketch1.addConstraint(Sketcher.Constraint("Symmetric", 11, 3, 47, 3, -1, 1))
sketch1.addConstraint(Sketcher.Constraint("Symmetric", 13, 3, 49, 3, -1, 1))
sketch1.addConstraint(Sketcher.Constraint("Symmetric", 17, 3, 53, 3, -1, 1))
sketch1.addConstraint(Sketcher.Constraint("Symmetric", 21, 3, 57, 3, -1, 1))
sketch1.addConstraint(Sketcher.Constraint("Symmetric", 25, 3, 61, 3, -1, 1))
sketch1.addConstraint(Sketcher.Constraint("Symmetric", 29, 3, 65, 3, -1, 1))
sketch1.addConstraint(Sketcher.Constraint("Symmetric", 31, 3, 67, 3, -1, 1))
sketch1.addConstraint(Sketcher.Constraint("Symmetric", 33, 1, 69, 1, -1, 1))
sketch1.addConstraint(Sketcher.Constraint("Symmetric", 15, 3, 21, 3, -2))
sketch1.addConstraint(Sketcher.Constraint("Symmetric", 11, 3, 25, 3, -2))
sketch1.addConstraint(Sketcher.Constraint("Symmetric", 7, 3, 29, 3, -2))
sketch1.addConstraint(Sketcher.Constraint("Symmetric", 5, 3, 31, 3, -2))
sketch1.addConstraint(Sketcher.Constraint("Symmetric", 2, 2, 33, 1, -2))
sketch1.addConstraint(Sketcher.Constraint("Symmetric", 52, 2, 55, 1, -2))
sketch1.addConstraint(Sketcher.Constraint("Parallel", 2, 16))
sketch1.addConstraint(Sketcher.Constraint("Perpendicular", 16, 20))
sketch1.addConstraint(Sketcher.Constraint("Parallel", 20, 34))
sketch1.addConstraint(Sketcher.Constraint("Horizontal", 5, 3, 7, 3))
sketch1.addConstraint(Sketcher.Constraint("Horizontal", 41, 3, 43, 3))
sketch1.addConstraint(Sketcher.Constraint("Horizontal", 11, 2, 24, 2))
sketch1.addConstraint(Sketcher.Constraint("Horizontal", 47, 2, 60, 2))
sketch1.addConstraint(Sketcher.Constraint("Equal", 54, 0))
sketch1.addConstraint(Sketcher.Constraint("Equal", 58, 4))
sketch1.addConstraint(Sketcher.Constraint("Equal", 62, 8))
sketch1.addConstraint(Sketcher.Constraint("Equal", 66, 12))
sketch1.addConstraint(Sketcher.Constraint("Equal", 2, 16))
sketch1.addConstraint(Sketcher.Constraint("Diameter", 72, 4.1))
sketch1.addConstraint(Sketcher.Constraint("DistanceX", 3, 1, -1, 1, 8.0))
sketch1.addConstraint(Sketcher.Constraint("DistanceX", 7, 2, -1, 1, 10.0))
sketch1.addConstraint(Sketcher.Constraint("DistanceY", 13, 2, -1, 1, 8.0))
sketch1.addConstraint(Sketcher.Constraint("Radius", 3, 0.479171))
sketch1.addConstraint(Sketcher.Constraint("Radius", 1, 3.123503))
sketch1.addConstraint(Sketcher.Constraint("Radius", 5, 0.553015))
sketch1.addConstraint(Sketcher.Constraint("Radius", 9, 1.060967))
sketch1.addConstraint(Sketcher.Constraint("Distance", 2, 3.712199))
sketch1.addConstraint(Sketcher.Constraint("DistanceX", 6, 2, 6, 1, 0.89027))
sketch1.addConstraint(Sketcher.Constraint("DistanceX", 14, 2, 14, 1, 2.160512))
sketch1.addConstraint(Sketcher.Constraint("DistanceX", 10, 1, 10, 2, 5.317026))
sketch1.setExpression("Constraints[161]", "Params.sketch1_diameter")
pad1 = body.newObject("PartDesign::Pad", "Pad")
pad1.Profile = sketch1
pad1.setExpression("Length", "Params.pad1_length")
pad1.Reversed = True

doc.recompute()
